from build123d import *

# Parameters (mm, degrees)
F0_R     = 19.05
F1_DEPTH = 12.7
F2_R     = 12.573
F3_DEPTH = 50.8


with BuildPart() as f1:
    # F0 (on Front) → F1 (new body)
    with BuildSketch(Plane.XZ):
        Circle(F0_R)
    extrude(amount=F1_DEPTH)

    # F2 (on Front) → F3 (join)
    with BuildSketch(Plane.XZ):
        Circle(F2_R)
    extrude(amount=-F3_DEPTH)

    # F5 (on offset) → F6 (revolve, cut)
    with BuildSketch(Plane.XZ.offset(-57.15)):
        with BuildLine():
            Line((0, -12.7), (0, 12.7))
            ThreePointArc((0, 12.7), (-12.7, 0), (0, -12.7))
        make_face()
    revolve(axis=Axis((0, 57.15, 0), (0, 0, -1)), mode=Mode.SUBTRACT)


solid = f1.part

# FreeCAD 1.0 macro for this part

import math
import FreeCAD as App
import Part
import Sketcher
from FreeCAD import Vector
Q = App.Units.Quantity

doc = App.newDocument("Part")
body = doc.addObject("PartDesign::Body", "Body")

# Sketch on XZ plane
sketch1 = doc.addObject("Sketcher::SketchObject", "Sketch")
body.addObject(sketch1)
sketch1.AttachmentSupport = (doc.XZ_Plane, [""])
sketch1.MapMode = "FlatFace"
sketch1.addGeometry(Part.Circle(Vector(0, 0, 0), Vector(0, 0, 1), 19), False)
sketch1.addConstraint([
    Sketcher.Constraint("Coincident", 0, 3, -1, 1),
    Sketcher.Constraint("Diameter", 0, Q("1.5 in")),
])
pad1 = doc.addObject("PartDesign::Pad", "Pad")
body.addObject(pad1)
pad1.Profile = sketch1
pad1.Length = Q("0.5 in")

# Sketch on XZ plane
sketch2 = doc.addObject("Sketcher::SketchObject", "Sketch001")
body.addObject(sketch2)
sketch2.AttachmentSupport = (doc.XZ_Plane, [""])
sketch2.MapMode = "FlatFace"
sketch2.addGeometry(Part.Circle(Vector(0, 0, 0), Vector(0, 0, 1), 13), False)
sketch2.addConstraint([
    Sketcher.Constraint("Coincident", 0, 3, -1, 1),
    Sketcher.Constraint("Diameter", 0, Q("0.99 in")),
])
pad2 = doc.addObject("PartDesign::Pad", "Pad001")
body.addObject(pad2)
pad2.Profile = sketch2
pad2.Length = Q("2 in")
pad2.Reversed = True

# Sketch on XZ plane
sketch3 = doc.addObject("Sketcher::SketchObject", "Sketch002")
body.addObject(sketch3)
sketch3.AttachmentSupport = (doc.XZ_Plane, [""])
sketch3.MapMode = "FlatFace"
sketch3.AttachmentOffset = App.Placement(Vector(0, 0, -2.25 * 25.4), App.Rotation())
sketch3.addGeometry([
    Part.LineSegment(Vector(0, -13, 0), Vector(0, 13, 0)),
    Part.ArcOfCircle(Part.Circle(Vector(0, 0, 0), Vector(0, 0, 1), 13), math.radians(90), math.radians(270)),
], False)
sketch3.addConstraint([
    Sketcher.Constraint("Coincident", 0, 1, 1, 2),
    Sketcher.Constraint("Coincident", 1, 1, 0, 2),
    Sketcher.Constraint("Vertical", 0),
    Sketcher.Constraint("Coincident", 1, 3, -1, 1),
    Sketcher.Constraint("PointOnObject", 0, 1, -2),
    Sketcher.Constraint("Radius", 1, Q("0.5 in")),
])
groove = doc.addObject("PartDesign::Groove", "Groove")
body.addObject(groove)
groove.Profile = sketch3
groove.ReferenceAxis = (sketch3, ["V_Axis"])
groove.Angle = 360

doc.recompute()
